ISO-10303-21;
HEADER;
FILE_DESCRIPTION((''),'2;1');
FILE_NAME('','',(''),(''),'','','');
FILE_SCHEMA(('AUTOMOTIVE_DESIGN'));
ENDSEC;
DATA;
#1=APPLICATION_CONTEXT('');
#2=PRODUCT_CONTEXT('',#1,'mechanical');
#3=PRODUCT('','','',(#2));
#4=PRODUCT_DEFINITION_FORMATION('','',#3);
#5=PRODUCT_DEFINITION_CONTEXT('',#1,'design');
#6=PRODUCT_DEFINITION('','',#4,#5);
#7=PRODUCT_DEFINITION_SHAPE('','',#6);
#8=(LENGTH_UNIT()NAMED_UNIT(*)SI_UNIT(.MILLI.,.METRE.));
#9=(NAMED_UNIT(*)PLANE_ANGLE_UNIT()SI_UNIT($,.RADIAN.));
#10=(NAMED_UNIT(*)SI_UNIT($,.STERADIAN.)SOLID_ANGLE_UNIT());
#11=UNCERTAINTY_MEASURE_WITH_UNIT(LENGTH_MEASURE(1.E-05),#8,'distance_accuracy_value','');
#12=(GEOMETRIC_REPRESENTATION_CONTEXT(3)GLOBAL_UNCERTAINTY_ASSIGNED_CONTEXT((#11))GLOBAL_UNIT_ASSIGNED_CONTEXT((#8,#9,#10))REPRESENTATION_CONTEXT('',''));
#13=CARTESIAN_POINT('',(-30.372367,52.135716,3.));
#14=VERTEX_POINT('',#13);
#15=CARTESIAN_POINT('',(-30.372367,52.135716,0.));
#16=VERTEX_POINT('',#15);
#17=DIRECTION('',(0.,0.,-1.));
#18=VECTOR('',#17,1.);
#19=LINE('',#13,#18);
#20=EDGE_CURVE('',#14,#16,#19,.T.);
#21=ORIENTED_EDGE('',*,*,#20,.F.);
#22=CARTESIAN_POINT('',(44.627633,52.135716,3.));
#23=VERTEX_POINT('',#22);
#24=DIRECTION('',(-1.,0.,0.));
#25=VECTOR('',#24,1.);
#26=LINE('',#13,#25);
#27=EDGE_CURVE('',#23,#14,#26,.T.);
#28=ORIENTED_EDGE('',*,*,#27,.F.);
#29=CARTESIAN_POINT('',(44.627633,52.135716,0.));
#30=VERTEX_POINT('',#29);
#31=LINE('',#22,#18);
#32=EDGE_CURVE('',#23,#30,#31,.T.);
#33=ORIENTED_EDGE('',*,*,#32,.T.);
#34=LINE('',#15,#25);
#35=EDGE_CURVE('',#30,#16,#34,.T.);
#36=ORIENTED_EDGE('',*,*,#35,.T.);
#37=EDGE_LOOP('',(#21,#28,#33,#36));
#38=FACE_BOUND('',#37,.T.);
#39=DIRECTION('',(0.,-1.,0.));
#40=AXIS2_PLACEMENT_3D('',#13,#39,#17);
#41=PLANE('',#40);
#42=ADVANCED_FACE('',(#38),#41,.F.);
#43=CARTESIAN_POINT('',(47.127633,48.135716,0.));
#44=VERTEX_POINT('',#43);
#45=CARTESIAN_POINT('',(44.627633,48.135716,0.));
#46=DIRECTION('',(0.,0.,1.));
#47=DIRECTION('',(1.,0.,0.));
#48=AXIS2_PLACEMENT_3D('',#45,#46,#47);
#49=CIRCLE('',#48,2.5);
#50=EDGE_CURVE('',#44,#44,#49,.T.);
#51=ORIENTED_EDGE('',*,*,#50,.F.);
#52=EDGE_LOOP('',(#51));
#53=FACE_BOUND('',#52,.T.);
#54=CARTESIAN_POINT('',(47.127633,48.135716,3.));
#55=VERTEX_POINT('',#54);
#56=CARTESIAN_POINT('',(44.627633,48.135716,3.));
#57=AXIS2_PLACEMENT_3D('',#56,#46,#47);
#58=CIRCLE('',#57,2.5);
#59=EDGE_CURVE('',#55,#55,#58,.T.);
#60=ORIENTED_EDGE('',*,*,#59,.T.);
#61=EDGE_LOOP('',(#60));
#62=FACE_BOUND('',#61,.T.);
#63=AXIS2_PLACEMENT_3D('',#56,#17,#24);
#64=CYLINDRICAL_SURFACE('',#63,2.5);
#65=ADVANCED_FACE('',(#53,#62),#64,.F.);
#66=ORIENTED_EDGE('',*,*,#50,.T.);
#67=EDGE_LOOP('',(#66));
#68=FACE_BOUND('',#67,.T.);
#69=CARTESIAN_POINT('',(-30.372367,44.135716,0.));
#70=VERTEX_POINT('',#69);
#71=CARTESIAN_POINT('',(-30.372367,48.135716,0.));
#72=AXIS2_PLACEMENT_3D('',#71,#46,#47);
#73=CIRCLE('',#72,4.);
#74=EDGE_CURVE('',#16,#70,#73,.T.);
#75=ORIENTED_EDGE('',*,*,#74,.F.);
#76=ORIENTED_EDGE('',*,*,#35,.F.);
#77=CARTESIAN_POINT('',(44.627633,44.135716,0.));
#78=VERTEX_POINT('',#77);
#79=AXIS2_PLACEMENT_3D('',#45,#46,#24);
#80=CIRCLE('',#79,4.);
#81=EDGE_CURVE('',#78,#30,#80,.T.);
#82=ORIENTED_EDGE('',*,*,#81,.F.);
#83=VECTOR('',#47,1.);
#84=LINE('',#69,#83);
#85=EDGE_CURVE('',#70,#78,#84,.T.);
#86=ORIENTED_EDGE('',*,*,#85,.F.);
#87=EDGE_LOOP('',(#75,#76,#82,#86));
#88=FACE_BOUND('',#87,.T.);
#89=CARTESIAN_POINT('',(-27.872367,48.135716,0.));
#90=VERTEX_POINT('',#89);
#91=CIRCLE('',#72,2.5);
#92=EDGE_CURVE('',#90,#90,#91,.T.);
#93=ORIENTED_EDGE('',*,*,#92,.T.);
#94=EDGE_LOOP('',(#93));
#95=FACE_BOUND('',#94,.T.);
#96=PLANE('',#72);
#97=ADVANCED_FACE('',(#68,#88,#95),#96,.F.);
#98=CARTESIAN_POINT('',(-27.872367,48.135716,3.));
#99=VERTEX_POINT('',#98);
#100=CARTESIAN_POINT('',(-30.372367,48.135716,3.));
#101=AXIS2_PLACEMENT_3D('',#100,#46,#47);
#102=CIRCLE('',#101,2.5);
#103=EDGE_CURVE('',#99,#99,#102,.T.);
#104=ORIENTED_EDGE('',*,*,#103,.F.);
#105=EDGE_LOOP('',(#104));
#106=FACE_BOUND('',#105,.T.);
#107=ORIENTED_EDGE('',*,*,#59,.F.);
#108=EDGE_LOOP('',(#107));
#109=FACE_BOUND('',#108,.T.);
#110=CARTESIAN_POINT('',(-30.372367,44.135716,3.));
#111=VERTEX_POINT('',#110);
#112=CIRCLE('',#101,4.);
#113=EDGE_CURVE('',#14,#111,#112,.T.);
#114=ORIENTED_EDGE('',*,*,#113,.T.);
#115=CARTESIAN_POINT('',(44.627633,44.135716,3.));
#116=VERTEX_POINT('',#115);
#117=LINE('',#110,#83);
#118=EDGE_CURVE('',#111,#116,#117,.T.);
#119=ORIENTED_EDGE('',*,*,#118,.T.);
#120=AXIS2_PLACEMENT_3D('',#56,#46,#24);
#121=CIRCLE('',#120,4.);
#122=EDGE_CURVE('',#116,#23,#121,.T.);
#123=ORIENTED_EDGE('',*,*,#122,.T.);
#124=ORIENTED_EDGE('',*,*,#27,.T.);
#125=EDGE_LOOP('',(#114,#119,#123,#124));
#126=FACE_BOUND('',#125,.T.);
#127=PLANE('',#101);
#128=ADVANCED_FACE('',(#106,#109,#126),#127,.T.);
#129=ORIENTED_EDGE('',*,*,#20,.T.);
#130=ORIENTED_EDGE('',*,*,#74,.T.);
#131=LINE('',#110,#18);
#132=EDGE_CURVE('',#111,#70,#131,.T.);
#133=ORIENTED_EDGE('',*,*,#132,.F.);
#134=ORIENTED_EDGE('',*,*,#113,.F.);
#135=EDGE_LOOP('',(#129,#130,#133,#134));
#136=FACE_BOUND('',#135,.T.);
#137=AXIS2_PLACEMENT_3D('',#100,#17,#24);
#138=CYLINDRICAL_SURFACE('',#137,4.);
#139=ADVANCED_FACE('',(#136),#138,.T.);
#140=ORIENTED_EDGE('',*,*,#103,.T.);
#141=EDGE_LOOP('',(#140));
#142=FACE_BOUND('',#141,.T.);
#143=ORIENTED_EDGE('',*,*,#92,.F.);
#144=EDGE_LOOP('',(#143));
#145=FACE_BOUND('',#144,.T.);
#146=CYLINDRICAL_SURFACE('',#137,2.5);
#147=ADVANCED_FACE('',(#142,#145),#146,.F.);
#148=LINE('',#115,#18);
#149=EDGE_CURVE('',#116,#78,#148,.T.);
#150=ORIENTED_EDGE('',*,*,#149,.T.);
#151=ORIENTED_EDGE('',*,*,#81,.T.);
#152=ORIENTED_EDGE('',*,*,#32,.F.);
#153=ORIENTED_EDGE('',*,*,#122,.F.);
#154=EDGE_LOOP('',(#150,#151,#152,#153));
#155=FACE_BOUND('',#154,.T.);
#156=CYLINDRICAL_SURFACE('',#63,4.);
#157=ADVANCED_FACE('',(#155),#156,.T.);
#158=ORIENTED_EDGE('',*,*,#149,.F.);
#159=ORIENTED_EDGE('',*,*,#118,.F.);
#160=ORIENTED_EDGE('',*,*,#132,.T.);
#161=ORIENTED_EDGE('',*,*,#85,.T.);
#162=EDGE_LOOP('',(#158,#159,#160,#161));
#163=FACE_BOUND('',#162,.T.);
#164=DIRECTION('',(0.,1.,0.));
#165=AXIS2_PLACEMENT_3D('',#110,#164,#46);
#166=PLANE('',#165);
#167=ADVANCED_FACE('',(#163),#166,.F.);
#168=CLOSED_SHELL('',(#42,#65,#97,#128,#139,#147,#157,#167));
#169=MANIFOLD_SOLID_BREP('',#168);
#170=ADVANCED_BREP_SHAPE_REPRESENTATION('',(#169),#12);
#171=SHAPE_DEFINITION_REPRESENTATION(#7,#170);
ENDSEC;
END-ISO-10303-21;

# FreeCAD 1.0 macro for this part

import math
import FreeCAD as App
import Part
import Sketcher

V = App.Vector

doc = App.newDocument("Part")
body = doc.addObject("PartDesign::Body", "Body")

# Sketch on XY plane
sketch1 = doc.addObject("Sketcher::SketchObject", "Sketch")
body.addObject(sketch1)
sketch1.AttachmentSupport = (doc.XY_Plane, [""])
sketch1.MapMode = "FlatFace"
sketch1.addGeometry(Part.LineSegment(V(44.6, 52.1, 0), V(-30.4, 52.1, 0)), False)
sketch1.addGeometry(Part.ArcOfCircle(Part.Circle(V(-30.4, 48.1, 0), V(0, 0, 1), 4), math.radians(90), math.radians(270)), False)
sketch1.addGeometry(Part.LineSegment(V(-30.4, 44.1, 0), V(44.6, 44.1, 0)), False)
sketch1.addGeometry(Part.ArcOfCircle(Part.Circle(V(44.6, 48.1, 0), V(0, 0, 1), 4), math.radians(-90), math.radians(90)), False)
sketch1.addGeometry(Part.Circle(V(44.6, 48.1, 0), V(0, 0, 1), 2.5), False)
sketch1.addGeometry(Part.Circle(V(-30.4, 48.1, 0), V(0, 0, 1), 2.5), False)
sketch1.addConstraint(Sketcher.Constraint("Tangent", 0, 2, 1, 1))
sketch1.addConstraint(Sketcher.Constraint("Tangent", 1, 2, 2, 1))
sketch1.addConstraint(Sketcher.Constraint("Tangent", 2, 2, 3, 1))
sketch1.addConstraint(Sketcher.Constraint("Tangent", 3, 2, 0, 1))
sketch1.addConstraint(Sketcher.Constraint("Horizontal", 0))
sketch1.addConstraint(Sketcher.Constraint("Horizontal", 2))
sketch1.addConstraint(Sketcher.Constraint("Coincident", 4, 3, 3, 3))
sketch1.addConstraint(Sketcher.Constraint("Coincident", 5, 3, 1, 3))
sketch1.addConstraint(Sketcher.Constraint("Equal", 4, 5))
sketch1.addConstraint(Sketcher.Constraint("Diameter", 4, 5.0))
sketch1.addConstraint(Sketcher.Constraint("Radius", 1, 4.0))
sketch1.addConstraint(Sketcher.Constraint("DistanceX", 0, 2, 0, 1, 75.0))
sketch1.addConstraint(Sketcher.Constraint("DistanceX", 1, 3, -1, 1, 30.372367))
sketch1.addConstraint(Sketcher.Constraint("DistanceY", -1, 1, 1, 3, 48.135716))
pad1 = doc.addObject("PartDesign::Pad", "Pad")
body.addObject(pad1)
pad1.Profile = sketch1
pad1.Length = 3

doc.recompute()
